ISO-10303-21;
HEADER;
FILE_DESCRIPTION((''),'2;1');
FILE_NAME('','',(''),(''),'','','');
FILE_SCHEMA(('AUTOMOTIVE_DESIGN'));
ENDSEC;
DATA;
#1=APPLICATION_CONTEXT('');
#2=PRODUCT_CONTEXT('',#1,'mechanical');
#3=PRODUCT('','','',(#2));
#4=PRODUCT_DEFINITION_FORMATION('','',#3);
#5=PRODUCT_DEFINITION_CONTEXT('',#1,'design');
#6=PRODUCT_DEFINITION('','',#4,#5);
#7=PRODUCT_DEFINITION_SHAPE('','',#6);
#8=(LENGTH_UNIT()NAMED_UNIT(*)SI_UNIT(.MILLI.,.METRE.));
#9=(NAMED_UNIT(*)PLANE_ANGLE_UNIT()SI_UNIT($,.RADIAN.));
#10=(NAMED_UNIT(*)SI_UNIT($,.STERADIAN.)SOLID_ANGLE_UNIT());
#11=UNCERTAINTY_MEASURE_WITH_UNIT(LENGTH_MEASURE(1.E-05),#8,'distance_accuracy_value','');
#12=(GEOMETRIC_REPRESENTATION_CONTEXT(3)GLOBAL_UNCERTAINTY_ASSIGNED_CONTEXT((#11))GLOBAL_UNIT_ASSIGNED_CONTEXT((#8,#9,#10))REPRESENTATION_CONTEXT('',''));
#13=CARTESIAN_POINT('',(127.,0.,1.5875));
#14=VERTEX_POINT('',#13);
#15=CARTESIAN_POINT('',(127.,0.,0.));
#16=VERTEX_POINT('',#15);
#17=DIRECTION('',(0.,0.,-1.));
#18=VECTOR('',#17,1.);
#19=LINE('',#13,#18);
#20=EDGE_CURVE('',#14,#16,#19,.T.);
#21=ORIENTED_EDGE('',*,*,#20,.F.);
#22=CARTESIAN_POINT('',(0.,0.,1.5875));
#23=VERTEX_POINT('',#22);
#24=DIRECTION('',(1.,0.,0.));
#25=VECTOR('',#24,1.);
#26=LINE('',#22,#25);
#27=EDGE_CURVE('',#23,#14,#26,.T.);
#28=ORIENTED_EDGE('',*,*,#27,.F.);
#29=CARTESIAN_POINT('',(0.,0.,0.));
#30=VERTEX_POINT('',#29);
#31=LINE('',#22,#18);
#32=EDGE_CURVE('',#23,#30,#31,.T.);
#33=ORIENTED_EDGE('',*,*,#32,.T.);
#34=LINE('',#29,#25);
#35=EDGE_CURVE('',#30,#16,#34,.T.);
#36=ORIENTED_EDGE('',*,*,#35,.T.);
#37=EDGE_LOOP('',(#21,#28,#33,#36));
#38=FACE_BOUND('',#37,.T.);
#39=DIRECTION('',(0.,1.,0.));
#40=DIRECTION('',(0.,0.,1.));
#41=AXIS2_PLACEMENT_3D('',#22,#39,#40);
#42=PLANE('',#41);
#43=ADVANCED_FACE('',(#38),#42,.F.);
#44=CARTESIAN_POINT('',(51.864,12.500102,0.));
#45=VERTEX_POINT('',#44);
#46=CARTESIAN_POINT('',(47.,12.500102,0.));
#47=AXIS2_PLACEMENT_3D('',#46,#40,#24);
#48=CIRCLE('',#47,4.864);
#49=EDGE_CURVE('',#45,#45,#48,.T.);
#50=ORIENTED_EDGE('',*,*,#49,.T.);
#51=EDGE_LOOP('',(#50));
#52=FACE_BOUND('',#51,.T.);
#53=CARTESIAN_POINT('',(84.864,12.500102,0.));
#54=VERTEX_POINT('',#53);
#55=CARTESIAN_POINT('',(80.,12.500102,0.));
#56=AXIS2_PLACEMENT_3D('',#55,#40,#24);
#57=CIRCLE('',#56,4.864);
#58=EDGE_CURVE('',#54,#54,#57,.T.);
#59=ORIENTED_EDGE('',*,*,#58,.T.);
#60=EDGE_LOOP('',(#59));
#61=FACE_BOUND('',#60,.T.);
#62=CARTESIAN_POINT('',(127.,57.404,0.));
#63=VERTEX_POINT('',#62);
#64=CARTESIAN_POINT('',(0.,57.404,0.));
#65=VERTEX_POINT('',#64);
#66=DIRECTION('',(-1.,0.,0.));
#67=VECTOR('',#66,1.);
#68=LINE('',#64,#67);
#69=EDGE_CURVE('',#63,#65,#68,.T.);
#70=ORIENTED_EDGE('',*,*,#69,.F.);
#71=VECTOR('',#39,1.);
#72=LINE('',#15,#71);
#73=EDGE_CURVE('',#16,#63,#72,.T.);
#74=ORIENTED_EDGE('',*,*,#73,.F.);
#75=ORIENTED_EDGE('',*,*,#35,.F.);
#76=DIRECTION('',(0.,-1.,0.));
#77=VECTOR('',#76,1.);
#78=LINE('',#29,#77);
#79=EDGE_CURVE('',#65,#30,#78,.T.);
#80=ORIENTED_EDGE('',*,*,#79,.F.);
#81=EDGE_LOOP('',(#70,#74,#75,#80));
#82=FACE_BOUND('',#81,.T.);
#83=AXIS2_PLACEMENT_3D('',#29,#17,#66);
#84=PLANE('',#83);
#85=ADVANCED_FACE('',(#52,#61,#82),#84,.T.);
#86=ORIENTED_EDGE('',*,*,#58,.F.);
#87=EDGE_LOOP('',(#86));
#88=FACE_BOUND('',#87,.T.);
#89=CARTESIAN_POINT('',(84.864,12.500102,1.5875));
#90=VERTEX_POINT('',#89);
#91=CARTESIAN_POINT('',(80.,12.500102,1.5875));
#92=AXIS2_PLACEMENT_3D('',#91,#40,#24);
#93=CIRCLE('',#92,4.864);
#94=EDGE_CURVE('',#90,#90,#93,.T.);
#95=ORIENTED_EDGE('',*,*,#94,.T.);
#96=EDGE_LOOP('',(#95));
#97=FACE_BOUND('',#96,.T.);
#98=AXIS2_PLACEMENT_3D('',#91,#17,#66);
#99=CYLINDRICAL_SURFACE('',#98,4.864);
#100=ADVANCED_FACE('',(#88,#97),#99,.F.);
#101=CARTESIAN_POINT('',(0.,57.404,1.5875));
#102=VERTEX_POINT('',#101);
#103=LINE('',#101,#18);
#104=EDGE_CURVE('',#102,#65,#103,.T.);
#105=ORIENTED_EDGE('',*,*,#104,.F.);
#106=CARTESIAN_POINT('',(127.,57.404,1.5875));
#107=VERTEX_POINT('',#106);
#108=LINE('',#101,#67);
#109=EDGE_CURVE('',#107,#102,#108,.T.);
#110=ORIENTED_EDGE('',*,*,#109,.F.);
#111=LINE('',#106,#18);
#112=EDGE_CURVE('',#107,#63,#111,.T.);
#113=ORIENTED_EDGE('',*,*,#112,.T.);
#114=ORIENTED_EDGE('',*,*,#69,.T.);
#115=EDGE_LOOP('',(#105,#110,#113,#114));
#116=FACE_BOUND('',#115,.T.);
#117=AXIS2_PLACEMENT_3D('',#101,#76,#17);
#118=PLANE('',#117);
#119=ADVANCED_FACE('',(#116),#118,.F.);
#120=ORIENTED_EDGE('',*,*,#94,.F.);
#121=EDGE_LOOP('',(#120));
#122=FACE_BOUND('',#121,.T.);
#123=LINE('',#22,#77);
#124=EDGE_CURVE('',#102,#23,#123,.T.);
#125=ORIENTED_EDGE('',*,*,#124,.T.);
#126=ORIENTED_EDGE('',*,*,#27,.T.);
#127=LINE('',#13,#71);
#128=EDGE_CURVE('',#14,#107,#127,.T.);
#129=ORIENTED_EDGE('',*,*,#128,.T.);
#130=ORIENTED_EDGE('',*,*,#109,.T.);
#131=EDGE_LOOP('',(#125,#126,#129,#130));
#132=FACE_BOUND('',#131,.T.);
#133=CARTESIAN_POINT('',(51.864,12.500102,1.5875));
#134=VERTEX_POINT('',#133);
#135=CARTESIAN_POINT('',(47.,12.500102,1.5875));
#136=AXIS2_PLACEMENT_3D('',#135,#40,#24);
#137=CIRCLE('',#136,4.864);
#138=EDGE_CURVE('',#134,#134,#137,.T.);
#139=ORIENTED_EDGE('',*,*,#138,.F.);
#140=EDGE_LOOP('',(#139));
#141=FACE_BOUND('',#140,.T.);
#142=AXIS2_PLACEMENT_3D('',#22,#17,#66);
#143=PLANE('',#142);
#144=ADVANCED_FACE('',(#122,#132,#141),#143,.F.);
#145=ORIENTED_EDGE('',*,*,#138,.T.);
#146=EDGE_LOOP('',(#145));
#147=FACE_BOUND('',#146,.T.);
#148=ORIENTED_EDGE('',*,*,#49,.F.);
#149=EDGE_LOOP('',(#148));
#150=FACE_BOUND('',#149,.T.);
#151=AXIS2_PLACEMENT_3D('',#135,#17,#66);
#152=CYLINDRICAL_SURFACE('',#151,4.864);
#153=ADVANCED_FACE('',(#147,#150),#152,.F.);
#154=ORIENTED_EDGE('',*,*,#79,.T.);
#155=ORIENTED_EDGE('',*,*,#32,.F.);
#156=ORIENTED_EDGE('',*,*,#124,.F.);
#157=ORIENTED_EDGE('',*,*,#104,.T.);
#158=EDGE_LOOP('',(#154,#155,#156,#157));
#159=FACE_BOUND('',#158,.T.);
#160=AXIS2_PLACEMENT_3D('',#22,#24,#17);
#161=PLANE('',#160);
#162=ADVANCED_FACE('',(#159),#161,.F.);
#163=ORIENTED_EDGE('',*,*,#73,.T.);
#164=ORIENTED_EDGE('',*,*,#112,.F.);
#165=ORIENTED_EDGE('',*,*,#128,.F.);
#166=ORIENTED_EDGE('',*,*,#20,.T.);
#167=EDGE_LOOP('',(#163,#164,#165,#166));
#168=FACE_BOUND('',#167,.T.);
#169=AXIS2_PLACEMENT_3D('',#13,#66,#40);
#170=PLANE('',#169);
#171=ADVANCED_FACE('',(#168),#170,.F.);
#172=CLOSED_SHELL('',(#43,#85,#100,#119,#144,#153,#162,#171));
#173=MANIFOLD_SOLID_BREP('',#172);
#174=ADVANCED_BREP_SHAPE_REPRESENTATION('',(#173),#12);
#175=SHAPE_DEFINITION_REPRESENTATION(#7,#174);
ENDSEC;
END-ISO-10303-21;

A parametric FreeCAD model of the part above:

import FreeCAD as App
import Part
import Sketcher

V = App.Vector
Q = App.Units.Quantity

doc = App.newDocument("Part")
params = doc.addObject("Spreadsheet::Sheet", "Params")
for row, (alias, value) in enumerate([
    ("sketch1_width", "5 in"),
    ("sketch1_height", "2.26 in"),
    ("pad1_length", "0.0625 in"),
], start=1):
    params.set(f"A{row}", alias)
    params.set(f"B{row}", "=" + value)
    params.setAlias(f"B{row}", alias)

body = doc.addObject("PartDesign::Body", "Body")

# Sketch on XY plane
sketch1 = doc.addObject("Sketcher::SketchObject", "Sketch")
body.addObject(sketch1)
sketch1.AttachmentSupport = (doc.XY_Plane, [""])
sketch1.MapMode = "FlatFace"
sketch1.addGeometry(Part.LineSegment(V(0, 57.4, 0), V(0, 0, 0)), False)
sketch1.addGeometry(Part.LineSegment(V(0, 0, 0), V(127, 0, 0)), False)
sketch1.addGeometry(Part.LineSegment(V(127, 0, 0), V(127, 57.4, 0)), False)
sketch1.addGeometry(Part.LineSegment(V(127, 57.4, 0), V(0, 57.4, 0)), False)
sketch1.addGeometry(Part.Circle(V(47, 12.5, 0), V(0, 0, 1), 4.9), False)
sketch1.addGeometry(Part.Circle(V(80, 12.5, 0), V(0, 0, 1), 4.9), False)
sketch1.addConstraint(Sketcher.Constraint("Coincident", 0, 2, 1, 1))
sketch1.addConstraint(Sketcher.Constraint("Coincident", 1, 2, 2, 1))
sketch1.addConstraint(Sketcher.Constraint("Coincident", 2, 2, 3, 1))
sketch1.addConstraint(Sketcher.Constraint("Coincident", 3, 2, 0, 1))
sketch1.addConstraint(Sketcher.Constraint("Vertical", 0))
sketch1.addConstraint(Sketcher.Constraint("Horizontal", 1))
sketch1.addConstraint(Sketcher.Constraint("Vertical", 2))
sketch1.addConstraint(Sketcher.Constraint("Horizontal", 3))
sketch1.addConstraint(Sketcher.Constraint("Coincident", 0, 2, -1, 1))
sketch1.addConstraint(Sketcher.Constraint("Equal", 4, 5))
sketch1.addConstraint(Sketcher.Constraint("Horizontal", 4, 3, 5, 3))
sketch1.addConstraint(Sketcher.Constraint("DistanceX", 1, 1, 1, 2, Q("5 in")))
sketch1.addConstraint(Sketcher.Constraint("DistanceY", 0, 2, 0, 1, Q("2.26 in")))
sketch1.addConstraint(Sketcher.Constraint("Diameter", 4, Q("9.728 mm")))
sketch1.addConstraint(Sketcher.Constraint("DistanceX", -1, 1, 4, 3, Q("47 mm")))
sketch1.addConstraint(Sketcher.Constraint("DistanceX", -1, 1, 5, 3, Q("80 mm")))
sketch1.addConstraint(Sketcher.Constraint("DistanceY", 5, 3, 2, 2, Q("44.903898 mm")))
sketch1.setExpression("Constraints[11]", "Params.sketch1_width")
sketch1.setExpression("Constraints[12]", "Params.sketch1_height")
pad1 = doc.addObject("PartDesign::Pad", "Pad")
body.addObject(pad1)
pad1.Profile = sketch1
pad1.setExpression("Length", "Params.pad1_length")

doc.recompute()
